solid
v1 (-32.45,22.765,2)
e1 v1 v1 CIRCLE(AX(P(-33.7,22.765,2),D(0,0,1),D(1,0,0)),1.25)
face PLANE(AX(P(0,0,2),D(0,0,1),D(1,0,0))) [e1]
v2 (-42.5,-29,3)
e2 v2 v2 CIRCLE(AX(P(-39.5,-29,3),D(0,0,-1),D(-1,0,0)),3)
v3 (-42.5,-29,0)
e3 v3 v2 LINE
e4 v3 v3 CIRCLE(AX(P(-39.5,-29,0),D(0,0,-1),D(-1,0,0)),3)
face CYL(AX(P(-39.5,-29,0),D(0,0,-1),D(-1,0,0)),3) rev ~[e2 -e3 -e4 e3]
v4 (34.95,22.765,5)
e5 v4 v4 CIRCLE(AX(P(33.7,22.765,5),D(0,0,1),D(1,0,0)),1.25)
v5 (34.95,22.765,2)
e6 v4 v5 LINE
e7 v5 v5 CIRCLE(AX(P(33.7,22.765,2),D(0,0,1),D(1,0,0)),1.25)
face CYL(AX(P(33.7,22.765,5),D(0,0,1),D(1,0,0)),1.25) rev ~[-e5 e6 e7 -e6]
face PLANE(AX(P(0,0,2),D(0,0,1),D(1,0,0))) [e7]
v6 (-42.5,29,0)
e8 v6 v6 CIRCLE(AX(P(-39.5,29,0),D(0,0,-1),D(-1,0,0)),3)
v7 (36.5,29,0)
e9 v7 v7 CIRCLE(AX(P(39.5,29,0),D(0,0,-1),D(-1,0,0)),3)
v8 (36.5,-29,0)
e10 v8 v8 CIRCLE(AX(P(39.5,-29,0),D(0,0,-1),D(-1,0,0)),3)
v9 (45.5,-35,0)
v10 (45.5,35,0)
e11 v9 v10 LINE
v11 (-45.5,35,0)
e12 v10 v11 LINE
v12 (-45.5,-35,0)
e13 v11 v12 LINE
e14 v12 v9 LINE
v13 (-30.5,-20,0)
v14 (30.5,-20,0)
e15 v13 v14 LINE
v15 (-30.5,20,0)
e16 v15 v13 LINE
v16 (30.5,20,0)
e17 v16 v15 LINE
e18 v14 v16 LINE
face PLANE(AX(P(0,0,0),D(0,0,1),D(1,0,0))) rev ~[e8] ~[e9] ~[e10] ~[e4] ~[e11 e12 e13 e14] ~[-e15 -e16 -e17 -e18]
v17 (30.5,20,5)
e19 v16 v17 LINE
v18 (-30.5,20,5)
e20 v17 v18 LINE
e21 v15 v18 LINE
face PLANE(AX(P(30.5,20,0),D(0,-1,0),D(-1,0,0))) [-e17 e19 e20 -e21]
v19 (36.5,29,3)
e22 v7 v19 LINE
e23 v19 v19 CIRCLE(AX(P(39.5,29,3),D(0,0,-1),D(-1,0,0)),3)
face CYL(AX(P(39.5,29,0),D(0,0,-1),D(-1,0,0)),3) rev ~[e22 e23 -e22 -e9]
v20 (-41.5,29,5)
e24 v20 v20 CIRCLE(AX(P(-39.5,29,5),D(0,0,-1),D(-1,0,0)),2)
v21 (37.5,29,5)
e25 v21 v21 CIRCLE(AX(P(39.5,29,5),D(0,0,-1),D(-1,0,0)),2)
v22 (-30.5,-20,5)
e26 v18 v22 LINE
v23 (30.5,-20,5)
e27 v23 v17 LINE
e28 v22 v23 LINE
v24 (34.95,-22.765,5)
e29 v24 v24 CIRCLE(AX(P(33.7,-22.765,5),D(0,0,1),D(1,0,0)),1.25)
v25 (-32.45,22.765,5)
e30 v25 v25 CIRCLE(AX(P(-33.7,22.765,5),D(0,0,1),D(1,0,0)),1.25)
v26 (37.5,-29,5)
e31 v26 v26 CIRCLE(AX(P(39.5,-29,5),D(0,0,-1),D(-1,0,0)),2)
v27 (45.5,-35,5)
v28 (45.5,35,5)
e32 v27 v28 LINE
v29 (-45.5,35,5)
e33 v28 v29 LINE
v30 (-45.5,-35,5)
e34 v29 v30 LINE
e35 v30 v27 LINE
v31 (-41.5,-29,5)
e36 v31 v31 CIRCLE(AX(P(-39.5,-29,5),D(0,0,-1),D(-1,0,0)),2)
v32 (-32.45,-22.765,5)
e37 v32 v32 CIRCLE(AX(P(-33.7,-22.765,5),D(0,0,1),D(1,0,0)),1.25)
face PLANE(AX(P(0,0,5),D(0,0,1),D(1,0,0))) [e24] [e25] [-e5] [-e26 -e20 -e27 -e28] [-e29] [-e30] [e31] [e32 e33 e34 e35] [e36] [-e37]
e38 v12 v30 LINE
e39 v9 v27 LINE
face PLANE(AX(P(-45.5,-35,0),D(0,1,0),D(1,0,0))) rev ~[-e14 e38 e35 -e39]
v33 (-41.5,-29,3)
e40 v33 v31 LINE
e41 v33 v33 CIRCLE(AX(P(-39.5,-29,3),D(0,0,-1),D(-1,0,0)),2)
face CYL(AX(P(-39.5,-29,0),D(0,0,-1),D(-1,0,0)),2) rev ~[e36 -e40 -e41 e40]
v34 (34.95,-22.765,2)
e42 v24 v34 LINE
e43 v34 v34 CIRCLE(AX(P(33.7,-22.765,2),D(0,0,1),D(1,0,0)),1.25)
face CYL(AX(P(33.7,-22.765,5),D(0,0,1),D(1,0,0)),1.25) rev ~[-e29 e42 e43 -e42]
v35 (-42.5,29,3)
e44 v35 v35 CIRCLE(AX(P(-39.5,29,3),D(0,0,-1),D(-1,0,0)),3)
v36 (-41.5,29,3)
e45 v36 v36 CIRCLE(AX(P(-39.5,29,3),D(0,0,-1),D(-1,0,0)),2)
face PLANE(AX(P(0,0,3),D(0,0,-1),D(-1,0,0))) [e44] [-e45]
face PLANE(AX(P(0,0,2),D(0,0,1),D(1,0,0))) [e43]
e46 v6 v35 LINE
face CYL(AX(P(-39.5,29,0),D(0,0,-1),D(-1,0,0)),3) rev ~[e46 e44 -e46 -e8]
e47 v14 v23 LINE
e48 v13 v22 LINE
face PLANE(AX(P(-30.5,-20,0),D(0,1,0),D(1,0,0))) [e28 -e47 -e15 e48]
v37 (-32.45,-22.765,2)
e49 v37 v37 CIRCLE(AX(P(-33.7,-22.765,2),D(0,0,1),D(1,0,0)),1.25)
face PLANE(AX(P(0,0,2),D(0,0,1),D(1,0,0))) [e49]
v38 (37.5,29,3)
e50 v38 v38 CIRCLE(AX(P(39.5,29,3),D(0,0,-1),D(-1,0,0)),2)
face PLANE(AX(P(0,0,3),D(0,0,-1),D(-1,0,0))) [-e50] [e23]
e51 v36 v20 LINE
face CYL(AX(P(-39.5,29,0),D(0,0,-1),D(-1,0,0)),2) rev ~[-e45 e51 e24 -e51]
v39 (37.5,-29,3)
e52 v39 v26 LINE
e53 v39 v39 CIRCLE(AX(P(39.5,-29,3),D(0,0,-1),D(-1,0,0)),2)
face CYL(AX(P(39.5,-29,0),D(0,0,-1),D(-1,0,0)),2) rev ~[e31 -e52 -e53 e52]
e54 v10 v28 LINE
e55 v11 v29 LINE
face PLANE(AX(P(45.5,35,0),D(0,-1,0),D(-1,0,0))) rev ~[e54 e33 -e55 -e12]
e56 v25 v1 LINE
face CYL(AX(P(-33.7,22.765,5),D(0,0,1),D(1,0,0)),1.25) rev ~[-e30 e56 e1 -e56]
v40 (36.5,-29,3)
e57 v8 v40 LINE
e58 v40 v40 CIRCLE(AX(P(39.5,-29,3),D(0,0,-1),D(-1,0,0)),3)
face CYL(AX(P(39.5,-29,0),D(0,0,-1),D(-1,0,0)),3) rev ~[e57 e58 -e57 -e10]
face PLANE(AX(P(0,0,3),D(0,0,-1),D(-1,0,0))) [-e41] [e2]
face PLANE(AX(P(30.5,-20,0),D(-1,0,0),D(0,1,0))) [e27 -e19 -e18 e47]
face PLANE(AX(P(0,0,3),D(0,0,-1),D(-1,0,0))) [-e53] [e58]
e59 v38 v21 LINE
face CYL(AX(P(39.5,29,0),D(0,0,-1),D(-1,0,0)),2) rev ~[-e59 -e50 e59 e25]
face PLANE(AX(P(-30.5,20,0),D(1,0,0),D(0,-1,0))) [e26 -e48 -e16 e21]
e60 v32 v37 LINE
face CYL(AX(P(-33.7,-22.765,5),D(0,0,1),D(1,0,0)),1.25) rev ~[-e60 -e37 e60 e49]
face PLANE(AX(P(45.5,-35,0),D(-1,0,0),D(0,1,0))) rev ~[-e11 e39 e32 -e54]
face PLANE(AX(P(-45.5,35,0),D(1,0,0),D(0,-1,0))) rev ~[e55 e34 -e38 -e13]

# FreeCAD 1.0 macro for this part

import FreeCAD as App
import Part
import Sketcher
from FreeCAD import Vector
Q = App.Units.Quantity

doc = App.newDocument("Part")
body = doc.addObject("PartDesign::Body", "Body")

# Sketch on XY plane
sketch1 = doc.addObject("Sketcher::SketchObject", "Sketch")
body.addObject(sketch1)
sketch1.AttachmentSupport = (doc.XY_Plane, [""])
sketch1.MapMode = "FlatFace"
sketch1.addGeometry([
    Part.LineSegment(Vector(-45.5, 35, 0), Vector(-45.5, -35, 0)),  # 0
    Part.LineSegment(Vector(-45.5, -35, 0), Vector(45.5, -35, 0)),  # 1
    Part.LineSegment(Vector(45.5, -35, 0), Vector(45.5, 35, 0)),  # 2
    Part.LineSegment(Vector(45.5, 35, 0), Vector(-45.5, 35, 0)),  # 3
    Part.LineSegment(Vector(30.5, -20, 0), Vector(-30.5, -20, 0)),  # 4
    Part.LineSegment(Vector(-30.5, -20, 0), Vector(-30.5, 20, 0)),  # 5
    Part.LineSegment(Vector(-30.5, 20, 0), Vector(30.5, 20, 0)),  # 6
    Part.LineSegment(Vector(30.5, 20, 0), Vector(30.5, -20, 0)),  # 7
], False)
sketch1.addConstraint([
    Sketcher.Constraint("Coincident", 0, 2, 1, 1),
    Sketcher.Constraint("Coincident", 1, 2, 2, 1),
    Sketcher.Constraint("Coincident", 2, 2, 3, 1),
    Sketcher.Constraint("Coincident", 3, 2, 0, 1),
    Sketcher.Constraint("Coincident", 4, 2, 5, 1),
    Sketcher.Constraint("Coincident", 5, 2, 6, 1),
    Sketcher.Constraint("Coincident", 6, 2, 7, 1),
    Sketcher.Constraint("Coincident", 7, 2, 4, 1),
    Sketcher.Constraint("Vertical", 0),
    Sketcher.Constraint("Horizontal", 1),
    Sketcher.Constraint("Vertical", 2),
    Sketcher.Constraint("Horizontal", 3),
    Sketcher.Constraint("Horizontal", 4),
    Sketcher.Constraint("Vertical", 5),
    Sketcher.Constraint("Horizontal", 6),
    Sketcher.Constraint("Vertical", 7),
    Sketcher.Constraint("Symmetric", 0, 2, 2, 2, -1, 1),
    Sketcher.Constraint("Symmetric", 4, 2, 6, 2, -1, 1),
    Sketcher.Constraint("DistanceX", 4, 2, 4, 1, Q("61 mm")),
    Sketcher.Constraint("DistanceY", 5, 1, 5, 2, Q("40 mm")),
    Sketcher.Constraint("DistanceX", 0, 2, 4, 2, Q("15 mm")),
    Sketcher.Constraint("DistanceY", 0, 2, 4, 2, Q("15 mm")),
])
pad1 = doc.addObject("PartDesign::Pad", "Pad")
body.addObject(pad1)
pad1.Profile = sketch1
pad1.Length = 5

# Sketch on XY plane
sketch2 = doc.addObject("Sketcher::SketchObject", "Sketch001")
body.addObject(sketch2)
sketch2.AttachmentSupport = (doc.XY_Plane, [""])
sketch2.MapMode = "FlatFace"
sketch2.AttachmentOffset = App.Placement(Vector(0, 0, 5), App.Rotation())
sketch2.addGeometry([
    Part.Circle(Vector(33.7, 22.765, 0), Vector(0, 0, 1), 1.25),
    Part.Circle(Vector(-33.7, 22.765, 0), Vector(0, 0, 1), 1.25),
    Part.Circle(Vector(33.7, -22.765, 0), Vector(0, 0, 1), 1.25),
    Part.Circle(Vector(-33.7, -22.765, 0), Vector(0, 0, 1), 1.25),
], False)
sketch2.addConstraint([
    Sketcher.Constraint("Equal", 0, 1),
    Sketcher.Constraint("Equal", 1, 2),
    Sketcher.Constraint("Equal", 2, 3),
    Sketcher.Constraint("Symmetric", 1, 3, 2, 3, -1, 1),
    Sketcher.Constraint("Symmetric", 0, 3, 3, 3, -1, 1),
    Sketcher.Constraint("Symmetric", 0, 3, 1, 3, -2),
    Sketcher.Constraint("Diameter", 0, Q("2.5 mm")),
    Sketcher.Constraint("DistanceX", 1, 3, 0, 3, Q("67.4 mm")),
    Sketcher.Constraint("DistanceY", 2, 3, 0, 3, Q("45.53 mm")),
])
pocket1 = doc.addObject("PartDesign::Pocket", "Pocket")
body.addObject(pocket1)
pocket1.Profile = sketch2
pocket1.Length = 3

# Sketch on XY plane
sketch3 = doc.addObject("Sketcher::SketchObject", "Sketch002")
body.addObject(sketch3)
sketch3.AttachmentSupport = (doc.XY_Plane, [""])
sketch3.MapMode = "FlatFace"
sketch3.addGeometry([
    Part.Circle(Vector(39.5, 29, 0), Vector(0, 0, 1), 2),
    Part.Circle(Vector(-39.5, 29, 0), Vector(0, 0, 1), 2),
    Part.Circle(Vector(-39.5, -29, 0), Vector(0, 0, 1), 2),
    Part.Circle(Vector(39.5, -29, 0), Vector(0, 0, 1), 2),
], False)
sketch3.addConstraint([
    Sketcher.Constraint("Equal", 0, 1),
    Sketcher.Constraint("Equal", 1, 2),
    Sketcher.Constraint("Equal", 2, 3),
    Sketcher.Constraint("Symmetric", 0, 3, 2, 3, -1, 1),
    Sketcher.Constraint("Symmetric", 1, 3, 3, 3, -1, 1),
    Sketcher.Constraint("Symmetric", 0, 3, 1, 3, -2),
    Sketcher.Constraint("Diameter", 0, Q("4 mm")),
    Sketcher.Constraint("DistanceY", -1, 1, 0, 3, Q("29 mm")),
    Sketcher.Constraint("DistanceX", 1, 3, 0, 3, Q("79 mm")),
])
pocket2 = doc.addObject("PartDesign::Pocket", "Pocket001")
body.addObject(pocket2)
pocket2.Profile = sketch3
pocket2.Length = 5
pocket2.Reversed = True

# Sketch on XY plane
sketch4 = doc.addObject("Sketcher::SketchObject", "Sketch003")
body.addObject(sketch4)
sketch4.AttachmentSupport = (doc.XY_Plane, [""])
sketch4.MapMode = "FlatFace"
sketch4.addGeometry([
    Part.Circle(Vector(39.5, -29, 0), Vector(0, 0, 1), 3),  # 0
    Part.Circle(Vector(39.5, -29, 0), Vector(0, 0, 1), 2),  # 1
    Part.Circle(Vector(39.5, 29, 0), Vector(0, 0, 1), 3),  # 2
    Part.Circle(Vector(-39.5, -29, 0), Vector(0, 0, 1), 3),  # 3
    Part.Circle(Vector(-39.5, 29, 0), Vector(0, 0, 1), 3),  # 4
], False)
sketch4.addConstraint([
    Sketcher.Constraint("Coincident", 1, 3, 0, 3),
    Sketcher.Constraint("Equal", 0, 2),
    Sketcher.Constraint("Equal", 2, 3),
    Sketcher.Constraint("Equal", 3, 4),
    Sketcher.Constraint("Symmetric", 2, 3, 3, 3, -1, 1),
    Sketcher.Constraint("Symmetric", 0, 3, 4, 3, -1, 1),
    Sketcher.Constraint("Symmetric", 0, 3, 3, 3, -2),
    Sketcher.Constraint("Diameter", 0, Q("6 mm")),
    Sketcher.Constraint("Diameter", 1, Q("4 mm")),
    Sketcher.Constraint("DistanceY", 0, 3, -1, 1, Q("29 mm")),
    Sketcher.Constraint("DistanceX", 3, 3, 0, 3, Q("79 mm")),
])
pocket3 = doc.addObject("PartDesign::Pocket", "Pocket002")
body.addObject(pocket3)
pocket3.Profile = sketch4
pocket3.Length = 3
pocket3.Reversed = True

doc.recompute()
